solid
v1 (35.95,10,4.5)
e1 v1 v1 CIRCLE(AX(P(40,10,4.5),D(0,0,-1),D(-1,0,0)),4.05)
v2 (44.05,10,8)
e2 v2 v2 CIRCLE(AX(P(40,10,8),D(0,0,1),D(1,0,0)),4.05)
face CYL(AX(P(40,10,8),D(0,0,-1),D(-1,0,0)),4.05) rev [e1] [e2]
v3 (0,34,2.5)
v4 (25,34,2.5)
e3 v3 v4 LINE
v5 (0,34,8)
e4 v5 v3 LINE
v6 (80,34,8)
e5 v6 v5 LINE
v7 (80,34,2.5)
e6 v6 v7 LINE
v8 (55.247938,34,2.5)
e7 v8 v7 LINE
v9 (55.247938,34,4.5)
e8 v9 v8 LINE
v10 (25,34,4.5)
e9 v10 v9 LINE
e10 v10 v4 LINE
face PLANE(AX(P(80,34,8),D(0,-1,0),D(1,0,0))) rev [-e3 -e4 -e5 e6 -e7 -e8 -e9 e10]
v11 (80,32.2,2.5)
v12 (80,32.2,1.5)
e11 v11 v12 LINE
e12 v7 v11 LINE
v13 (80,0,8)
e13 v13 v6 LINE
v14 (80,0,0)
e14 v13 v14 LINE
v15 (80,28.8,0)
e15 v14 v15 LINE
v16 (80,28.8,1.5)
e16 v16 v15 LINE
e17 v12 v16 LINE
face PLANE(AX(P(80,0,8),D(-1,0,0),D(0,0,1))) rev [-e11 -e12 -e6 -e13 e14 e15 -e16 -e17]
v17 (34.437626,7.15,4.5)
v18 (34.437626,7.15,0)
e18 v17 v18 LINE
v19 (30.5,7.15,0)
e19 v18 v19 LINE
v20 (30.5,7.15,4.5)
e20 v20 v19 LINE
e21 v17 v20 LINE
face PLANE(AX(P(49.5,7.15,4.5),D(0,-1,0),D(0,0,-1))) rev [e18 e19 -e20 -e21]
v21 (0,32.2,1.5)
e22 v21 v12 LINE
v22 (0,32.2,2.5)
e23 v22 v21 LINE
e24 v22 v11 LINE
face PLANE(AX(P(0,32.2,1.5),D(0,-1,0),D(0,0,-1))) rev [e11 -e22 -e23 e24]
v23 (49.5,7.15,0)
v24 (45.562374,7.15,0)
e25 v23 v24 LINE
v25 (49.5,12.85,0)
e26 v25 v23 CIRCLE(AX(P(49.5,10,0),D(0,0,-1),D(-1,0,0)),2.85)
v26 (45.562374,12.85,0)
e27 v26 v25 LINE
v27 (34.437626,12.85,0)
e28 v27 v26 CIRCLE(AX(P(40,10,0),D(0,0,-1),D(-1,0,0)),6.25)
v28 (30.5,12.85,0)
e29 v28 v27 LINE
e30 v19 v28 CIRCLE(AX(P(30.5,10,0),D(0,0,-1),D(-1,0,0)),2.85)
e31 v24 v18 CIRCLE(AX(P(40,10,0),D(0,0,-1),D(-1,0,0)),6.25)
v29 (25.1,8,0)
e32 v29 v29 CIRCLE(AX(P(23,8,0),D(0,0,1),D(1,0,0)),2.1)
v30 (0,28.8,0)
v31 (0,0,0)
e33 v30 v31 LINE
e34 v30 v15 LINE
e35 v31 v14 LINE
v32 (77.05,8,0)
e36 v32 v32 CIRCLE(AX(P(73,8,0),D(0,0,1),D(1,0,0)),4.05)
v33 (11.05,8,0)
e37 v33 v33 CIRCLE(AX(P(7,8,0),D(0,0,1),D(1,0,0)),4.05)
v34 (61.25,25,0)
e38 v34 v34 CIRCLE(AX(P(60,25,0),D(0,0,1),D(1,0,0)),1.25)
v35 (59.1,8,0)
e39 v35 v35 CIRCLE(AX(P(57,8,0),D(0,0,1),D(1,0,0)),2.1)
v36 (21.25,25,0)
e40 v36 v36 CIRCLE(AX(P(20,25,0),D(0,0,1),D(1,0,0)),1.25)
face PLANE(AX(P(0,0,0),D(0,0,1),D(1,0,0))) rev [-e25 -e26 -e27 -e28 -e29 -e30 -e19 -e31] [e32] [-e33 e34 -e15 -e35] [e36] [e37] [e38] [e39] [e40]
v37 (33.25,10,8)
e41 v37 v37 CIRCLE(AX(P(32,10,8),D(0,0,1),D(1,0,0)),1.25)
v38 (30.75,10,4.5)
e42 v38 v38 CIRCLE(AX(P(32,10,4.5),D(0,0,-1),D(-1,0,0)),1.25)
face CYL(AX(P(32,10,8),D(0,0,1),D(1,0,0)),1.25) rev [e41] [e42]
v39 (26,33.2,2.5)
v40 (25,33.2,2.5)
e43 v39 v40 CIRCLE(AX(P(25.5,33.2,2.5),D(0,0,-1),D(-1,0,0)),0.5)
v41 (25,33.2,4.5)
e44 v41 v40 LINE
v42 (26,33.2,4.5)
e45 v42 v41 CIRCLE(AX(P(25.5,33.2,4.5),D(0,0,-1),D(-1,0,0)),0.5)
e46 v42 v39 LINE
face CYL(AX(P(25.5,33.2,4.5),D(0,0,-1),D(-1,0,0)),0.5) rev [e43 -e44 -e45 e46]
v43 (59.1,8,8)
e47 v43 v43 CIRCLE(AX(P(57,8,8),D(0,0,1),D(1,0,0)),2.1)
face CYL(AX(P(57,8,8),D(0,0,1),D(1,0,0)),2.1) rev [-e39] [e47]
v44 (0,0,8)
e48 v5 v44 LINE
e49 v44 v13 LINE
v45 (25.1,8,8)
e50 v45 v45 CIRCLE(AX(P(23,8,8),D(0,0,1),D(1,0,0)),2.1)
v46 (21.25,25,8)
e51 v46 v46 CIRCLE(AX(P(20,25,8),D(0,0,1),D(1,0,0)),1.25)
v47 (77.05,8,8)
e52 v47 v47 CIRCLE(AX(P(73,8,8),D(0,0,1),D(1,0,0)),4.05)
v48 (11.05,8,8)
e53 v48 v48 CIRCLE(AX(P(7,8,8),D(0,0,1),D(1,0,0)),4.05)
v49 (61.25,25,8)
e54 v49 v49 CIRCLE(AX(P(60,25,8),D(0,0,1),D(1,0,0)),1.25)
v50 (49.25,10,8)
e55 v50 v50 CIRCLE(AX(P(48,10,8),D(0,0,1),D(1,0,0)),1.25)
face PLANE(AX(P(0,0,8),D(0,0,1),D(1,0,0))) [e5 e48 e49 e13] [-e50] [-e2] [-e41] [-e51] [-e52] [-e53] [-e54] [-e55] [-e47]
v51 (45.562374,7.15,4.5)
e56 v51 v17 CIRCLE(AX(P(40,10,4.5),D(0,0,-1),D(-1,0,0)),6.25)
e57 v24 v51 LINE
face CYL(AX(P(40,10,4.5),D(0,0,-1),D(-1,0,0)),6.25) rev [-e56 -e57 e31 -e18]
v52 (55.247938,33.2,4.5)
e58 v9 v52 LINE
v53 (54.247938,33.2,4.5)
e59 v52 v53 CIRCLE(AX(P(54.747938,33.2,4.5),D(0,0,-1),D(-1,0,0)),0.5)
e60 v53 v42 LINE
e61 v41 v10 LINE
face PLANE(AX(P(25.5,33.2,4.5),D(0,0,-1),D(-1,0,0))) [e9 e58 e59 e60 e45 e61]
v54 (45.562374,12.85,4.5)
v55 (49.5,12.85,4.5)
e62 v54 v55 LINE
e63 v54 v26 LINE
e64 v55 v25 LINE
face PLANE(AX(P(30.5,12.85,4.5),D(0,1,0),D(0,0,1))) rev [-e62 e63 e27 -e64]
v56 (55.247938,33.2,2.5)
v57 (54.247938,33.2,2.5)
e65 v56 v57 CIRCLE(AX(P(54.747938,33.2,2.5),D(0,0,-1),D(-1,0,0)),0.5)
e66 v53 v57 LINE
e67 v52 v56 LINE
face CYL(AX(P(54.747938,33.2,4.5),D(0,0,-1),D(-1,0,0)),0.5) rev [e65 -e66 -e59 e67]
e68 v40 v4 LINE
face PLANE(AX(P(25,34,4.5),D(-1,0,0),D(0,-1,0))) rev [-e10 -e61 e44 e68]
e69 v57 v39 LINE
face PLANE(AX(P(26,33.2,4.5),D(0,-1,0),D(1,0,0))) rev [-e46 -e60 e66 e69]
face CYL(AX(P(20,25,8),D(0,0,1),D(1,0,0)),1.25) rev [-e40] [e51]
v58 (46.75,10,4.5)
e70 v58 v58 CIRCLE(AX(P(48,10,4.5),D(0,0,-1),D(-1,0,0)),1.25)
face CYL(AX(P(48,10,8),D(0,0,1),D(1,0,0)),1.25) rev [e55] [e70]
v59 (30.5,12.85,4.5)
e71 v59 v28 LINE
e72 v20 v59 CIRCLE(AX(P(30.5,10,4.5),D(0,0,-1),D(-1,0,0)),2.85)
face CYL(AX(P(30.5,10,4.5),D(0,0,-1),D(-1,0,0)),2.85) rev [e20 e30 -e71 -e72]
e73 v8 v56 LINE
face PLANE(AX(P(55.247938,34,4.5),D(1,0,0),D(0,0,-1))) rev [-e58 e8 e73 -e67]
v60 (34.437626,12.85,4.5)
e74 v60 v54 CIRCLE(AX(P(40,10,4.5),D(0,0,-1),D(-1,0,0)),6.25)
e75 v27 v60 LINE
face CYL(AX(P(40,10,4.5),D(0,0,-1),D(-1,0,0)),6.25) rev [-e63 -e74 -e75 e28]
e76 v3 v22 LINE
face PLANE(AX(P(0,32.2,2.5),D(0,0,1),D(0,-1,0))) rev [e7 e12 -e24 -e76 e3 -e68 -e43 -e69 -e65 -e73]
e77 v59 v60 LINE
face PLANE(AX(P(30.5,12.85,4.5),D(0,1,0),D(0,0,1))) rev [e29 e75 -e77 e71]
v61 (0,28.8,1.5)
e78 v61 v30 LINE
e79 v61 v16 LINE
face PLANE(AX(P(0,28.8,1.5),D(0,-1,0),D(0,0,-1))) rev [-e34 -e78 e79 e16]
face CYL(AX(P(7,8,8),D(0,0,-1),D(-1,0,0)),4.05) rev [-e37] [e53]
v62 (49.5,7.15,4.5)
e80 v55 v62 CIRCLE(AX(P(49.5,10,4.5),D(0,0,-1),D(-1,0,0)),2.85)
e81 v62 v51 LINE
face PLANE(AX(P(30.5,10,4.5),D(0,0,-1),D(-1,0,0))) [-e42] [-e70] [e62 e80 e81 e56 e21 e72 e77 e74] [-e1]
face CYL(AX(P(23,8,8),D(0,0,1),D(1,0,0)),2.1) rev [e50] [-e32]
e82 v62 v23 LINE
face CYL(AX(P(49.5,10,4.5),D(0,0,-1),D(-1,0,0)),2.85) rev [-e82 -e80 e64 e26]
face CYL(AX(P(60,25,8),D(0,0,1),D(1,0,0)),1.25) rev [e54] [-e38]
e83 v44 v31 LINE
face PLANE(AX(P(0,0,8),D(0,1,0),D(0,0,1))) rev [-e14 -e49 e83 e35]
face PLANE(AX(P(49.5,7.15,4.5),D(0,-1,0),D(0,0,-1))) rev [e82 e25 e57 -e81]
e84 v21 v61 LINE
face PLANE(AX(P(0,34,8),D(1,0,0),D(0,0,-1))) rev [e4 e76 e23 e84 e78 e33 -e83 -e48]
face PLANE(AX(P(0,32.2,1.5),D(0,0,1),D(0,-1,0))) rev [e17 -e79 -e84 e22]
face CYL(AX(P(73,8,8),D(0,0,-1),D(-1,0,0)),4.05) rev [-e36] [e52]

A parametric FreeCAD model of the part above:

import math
import FreeCAD as App
import Part
import Sketcher
from FreeCAD import Vector

doc = App.newDocument("Part")
body = doc.addObject("PartDesign::Body", "Body")

sketch1 = body.newObject("Sketcher::SketchObject", "Sketch")
sketch1.AttachmentSupport = (doc.getObject("XY_Plane"), [""])
sketch1.MapMode = "FlatFace"
sketch1.addGeometry([
    Part.LineSegment(Vector(0, 34, 0), Vector(0, 0, 0)),
    Part.LineSegment(Vector(0, 0, 0), Vector(80, 0, 0)),
    Part.LineSegment(Vector(80, 0, 0), Vector(80, 34, 0)),
    Part.LineSegment(Vector(80, 34, 0), Vector(0, 34, 0)),
    Part.Circle(Vector(7, 8, 0), Vector(0, 0, 1), 4),
    Part.Circle(Vector(73, 8, 0), Vector(0, 0, 1), 4),
    Part.Circle(Vector(40, 10, 0), Vector(0, 0, 1), 4),
], False)
sketch1.addConstraint([
    Sketcher.Constraint("Coincident", 0, 2, 1, 1),
    Sketcher.Constraint("Coincident", 1, 2, 2, 1),
    Sketcher.Constraint("Coincident", 2, 2, 3, 1),
    Sketcher.Constraint("Coincident", 3, 2, 0, 1),
    Sketcher.Constraint("Vertical", 0),
    Sketcher.Constraint("Horizontal", 1),
    Sketcher.Constraint("Vertical", 2),
    Sketcher.Constraint("Horizontal", 3),
    Sketcher.Constraint("Coincident", 0, 2, -1, 1),
    Sketcher.Constraint("Equal", 4, 5),
    Sketcher.Constraint("Equal", 5, 6),
    Sketcher.Constraint("Horizontal", 4, 3, 5, 3),
    Sketcher.Constraint("Diameter", 4, 8.1),
    Sketcher.Constraint("DistanceX", 1, 1, 1, 2, 80.0),
    Sketcher.Constraint("DistanceY", 0, 2, 0, 1, 34.0),
    Sketcher.Constraint("DistanceX", -1, 1, 4, 3, 7.0),
    Sketcher.Constraint("DistanceY", -1, 1, 4, 3, 8.0),
    Sketcher.Constraint("DistanceX", -1, 1, 5, 3, 73.0),
    Sketcher.Constraint("DistanceX", -1, 1, 6, 3, 40.0),
    Sketcher.Constraint("DistanceY", -1, 1, 6, 3, 10.0),
])
pad1 = body.newObject("PartDesign::Pad", "Pad")
pad1.Profile = sketch1
pad1.Length = 8

sketch2 = body.newObject("Sketcher::SketchObject", "Sketch001")
sketch2.AttachmentSupport = (doc.getObject("YZ_Plane"), [""])
sketch2.MapMode = "FlatFace"
sketch2.AttachmentOffset = App.Placement(Vector(0, 0, 80), App.Rotation())
sketch2.addGeometry([
    Part.LineSegment(Vector(32.2, 2.5, 0), Vector(32.2, 1.5, 0)),
    Part.LineSegment(Vector(32.2, 1.5, 0), Vector(28.8, 1.5, 0)),
    Part.LineSegment(Vector(28.8, 1.5, 0), Vector(28.8, 0, 0)),
    Part.LineSegment(Vector(28.8, 0, 0), Vector(34, 0, 0)),
    Part.LineSegment(Vector(34, 0, 0), Vector(34, 2.5, 0)),
    Part.LineSegment(Vector(34, 2.5, 0), Vector(32.2, 2.5, 0)),
], False)
sketch2.addConstraint([
    Sketcher.Constraint("Coincident", 0, 2, 1, 1),
    Sketcher.Constraint("Coincident", 1, 2, 2, 1),
    Sketcher.Constraint("Coincident", 2, 2, 3, 1),
    Sketcher.Constraint("Coincident", 3, 2, 4, 1),
    Sketcher.Constraint("Coincident", 4, 2, 5, 1),
    Sketcher.Constraint("Coincident", 5, 2, 0, 1),
    Sketcher.Constraint("Vertical", 0),
    Sketcher.Constraint("Horizontal", 1),
    Sketcher.Constraint("Vertical", 2),
    Sketcher.Constraint("Horizontal", 3),
    Sketcher.Constraint("Vertical", 4),
    Sketcher.Constraint("Horizontal", 5),
    Sketcher.Constraint("PointOnObject", 2, 2, -1),
    Sketcher.Constraint("DistanceY", 0, 2, 0, 1, 1.0),
    Sketcher.Constraint("DistanceX", 1, 2, 1, 1, 3.4),
    Sketcher.Constraint("DistanceX", 3, 1, 3, 2, 5.2),
    Sketcher.Constraint("DistanceY", 2, 2, 2, 1, 1.5),
    Sketcher.Constraint("DistanceX", -1, 1, 3, 2, 34.0),
])
pocket1 = body.newObject("PartDesign::Pocket", "Pocket")
pocket1.Profile = sketch2
pocket1.Type = "ThroughAll"

sketch3 = body.newObject("Sketcher::SketchObject", "Sketch002")
sketch3.AttachmentSupport = (doc.getObject("XY_Plane"), [""])
sketch3.MapMode = "FlatFace"
sketch3.addGeometry([
    Part.LineSegment(Vector(30.5, 12.8, 0), Vector(49.5, 12.8, 0)),
    Part.ArcOfCircle(Part.Circle(Vector(49.5, 10, 0), Vector(0, 0, 1), 2.9), math.radians(-90), math.radians(90)),
    Part.LineSegment(Vector(49.5, 7.2, 0), Vector(30.5, 7.2, 0)),
    Part.ArcOfCircle(Part.Circle(Vector(30.5, 10, 0), Vector(0, 0, 1), 2.9), math.radians(90), math.radians(270)),
], False)
sketch3.addConstraint([
    Sketcher.Constraint("Tangent", 0, 2, 1, 2),
    Sketcher.Constraint("Tangent", 1, 1, 2, 1),
    Sketcher.Constraint("Tangent", 2, 2, 3, 2),
    Sketcher.Constraint("Tangent", 3, 1, 0, 1),
    Sketcher.Constraint("Horizontal", 0),
    Sketcher.Constraint("Horizontal", 2),
    Sketcher.Constraint("DistanceX", 0, 1, 0, 2, 19.0),
    Sketcher.Constraint("Radius", 1, 2.85),
    Sketcher.Constraint("DistanceY", -1, 1, 1, 3, 10.0),
    Sketcher.Constraint("DistanceX", -1, 1, 1, 3, 49.5),
])
pocket2 = body.newObject("PartDesign::Pocket", "Pocket001")
pocket2.Profile = sketch3
pocket2.Length = 4.5
pocket2.Reversed = True

sketch4 = body.newObject("Sketcher::SketchObject", "Sketch003")
sketch4.AttachmentSupport = (doc.getObject("XY_Plane"), [""])
sketch4.MapMode = "FlatFace"
sketch4.addGeometry(Part.Circle(Vector(40, 10, 0), Vector(0, 0, 1), 6), False)
sketch4.addConstraint([
    Sketcher.Constraint("Diameter", 0, 12.5),
    Sketcher.Constraint("DistanceX", -1, 1, 0, 3, 40.0),
    Sketcher.Constraint("DistanceY", -1, 1, 0, 3, 10.0),
])
pocket3 = body.newObject("PartDesign::Pocket", "Pocket002")
pocket3.Profile = sketch4
pocket3.Length = 4.5
pocket3.Reversed = True

sketch5 = body.newObject("Sketcher::SketchObject", "Sketch004")
sketch5.AttachmentSupport = (doc.getObject("XY_Plane"), [""])
sketch5.MapMode = "FlatFace"
sketch5.AttachmentOffset = App.Placement(Vector(0, 0, 2.5), App.Rotation())
sketch5.addGeometry([
    Part.LineSegment(Vector(25, 34, 0), Vector(55.2, 34, 0)),
    Part.LineSegment(Vector(55.2, 34, 0), Vector(55.2, 33.2, 0)),
    Part.ArcOfCircle(Part.Circle(Vector(54.7, 33.2, 0), Vector(0, 0, 1), 0.5), math.radians(180), math.radians(360)),
    Part.LineSegment(Vector(54.2, 33.2, 0), Vector(26, 33.2, 0)),
    Part.ArcOfCircle(Part.Circle(Vector(25.5, 33.2, 0), Vector(0, 0, 1), 0.5), math.radians(180), math.radians(360)),
    Part.LineSegment(Vector(25, 33.2, 0), Vector(25, 34, 0)),
], False)
sketch5.addConstraint([
    Sketcher.Constraint("Coincident", 0, 2, 1, 1),
    Sketcher.Constraint("Tangent", 1, 2, 2, 2),
    Sketcher.Constraint("Coincident", 2, 1, 3, 1),
    Sketcher.Constraint("Coincident", 3, 2, 4, 2),
    Sketcher.Constraint("Tangent", 4, 1, 5, 1),
    Sketcher.Constraint("Coincident", 5, 2, 0, 1),
    Sketcher.Constraint("Horizontal", 0),
    Sketcher.Constraint("Vertical", 1),
    Sketcher.Constraint("Horizontal", 3),
    Sketcher.Constraint("Vertical", 5),
    Sketcher.Constraint("Equal", 2, 4),
    Sketcher.Constraint("Horizontal", 2, 3, 4, 3),
    Sketcher.Constraint("Horizontal", 1, 2, 2, 1),
    Sketcher.Constraint("Radius", 2, 0.5),
    Sketcher.Constraint("DistanceY", 1, 2, 1, 1, 0.8),
    Sketcher.Constraint("DistanceY", -1, 1, 0, 2, 34.0),
    Sketcher.Constraint("DistanceX", -1, 1, 3, 2, 26.0),
    Sketcher.Constraint("DistanceX", 0, 1, 0, 2, 30.247938),
])
pocket4 = body.newObject("PartDesign::Pocket", "Pocket003")
pocket4.Profile = sketch5
pocket4.Length = 2
pocket4.Reversed = True

sketch6 = body.newObject("Sketcher::SketchObject", "Sketch005")
sketch6.AttachmentSupport = (doc.getObject("XY_Plane"), [""])
sketch6.MapMode = "FlatFace"
sketch6.AttachmentOffset = App.Placement(Vector(0, 0, 8), App.Rotation())
sketch6.addGeometry([
    Part.Circle(Vector(20, 25, 0), Vector(0, 0, 1), 1.2),
    Part.Circle(Vector(60, 25, 0), Vector(0, 0, 1), 1.2),
    Part.Circle(Vector(32, 10, 0), Vector(0, 0, 1), 1.2),
    Part.Circle(Vector(48, 10, 0), Vector(0, 0, 1), 1.2),
], False)
sketch6.addConstraint([
    Sketcher.Constraint("Equal", 0, 1),
    Sketcher.Constraint("Equal", 1, 2),
    Sketcher.Constraint("Equal", 2, 3),
    Sketcher.Constraint("Horizontal", 0, 3, 1, 3),
    Sketcher.Constraint("Horizontal", 2, 3, 3, 3),
    Sketcher.Constraint("Diameter", 0, 2.5),
    Sketcher.Constraint("DistanceX", -1, 1, 0, 3, 20.0),
    Sketcher.Constraint("DistanceY", -1, 1, 0, 3, 25.0),
    Sketcher.Constraint("DistanceX", -1, 1, 1, 3, 60.0),
    Sketcher.Constraint("DistanceX", -1, 1, 2, 3, 32.0),
    Sketcher.Constraint("DistanceY", -1, 1, 2, 3, 10.0),
    Sketcher.Constraint("DistanceX", -1, 1, 3, 3, 48.0),
])
doc.recompute()
hole = body.newObject("PartDesign::Hole", "Hole")
hole.Profile = sketch6
hole.ThreadType = "None"
hole.Diameter = 2.5
hole.DepthType = "ThroughAll"

sketch7 = body.newObject("Sketcher::SketchObject", "Sketch006")
sketch7.AttachmentSupport = (doc.getObject("XY_Plane"), [""])
sketch7.MapMode = "FlatFace"
sketch7.AttachmentOffset = App.Placement(Vector(0, 0, 8), App.Rotation())
sketch7.addGeometry([
    Part.Circle(Vector(23, 8, 0), Vector(0, 0, 1), 2.1),
    Part.Circle(Vector(57, 8, 0), Vector(0, 0, 1), 2.1),
], False)
sketch7.addConstraint([
    Sketcher.Constraint("Equal", 0, 1),
    Sketcher.Constraint("Horizontal", 0, 3, 1, 3),
    Sketcher.Constraint("Diameter", 0, 4.2),
    Sketcher.Constraint("DistanceX", -1, 1, 0, 3, 23.0),
    Sketcher.Constraint("DistanceY", -1, 1, 0, 3, 8.0),
    Sketcher.Constraint("DistanceX", -1, 1, 1, 3, 57.0),
])
doc.recompute()
hole2 = body.newObject("PartDesign::Hole", "Hole001")
hole2.Profile = sketch7
hole2.ThreadType = "None"
hole2.Diameter = 4.2
hole2.DepthType = "ThroughAll"

doc.recompute()
